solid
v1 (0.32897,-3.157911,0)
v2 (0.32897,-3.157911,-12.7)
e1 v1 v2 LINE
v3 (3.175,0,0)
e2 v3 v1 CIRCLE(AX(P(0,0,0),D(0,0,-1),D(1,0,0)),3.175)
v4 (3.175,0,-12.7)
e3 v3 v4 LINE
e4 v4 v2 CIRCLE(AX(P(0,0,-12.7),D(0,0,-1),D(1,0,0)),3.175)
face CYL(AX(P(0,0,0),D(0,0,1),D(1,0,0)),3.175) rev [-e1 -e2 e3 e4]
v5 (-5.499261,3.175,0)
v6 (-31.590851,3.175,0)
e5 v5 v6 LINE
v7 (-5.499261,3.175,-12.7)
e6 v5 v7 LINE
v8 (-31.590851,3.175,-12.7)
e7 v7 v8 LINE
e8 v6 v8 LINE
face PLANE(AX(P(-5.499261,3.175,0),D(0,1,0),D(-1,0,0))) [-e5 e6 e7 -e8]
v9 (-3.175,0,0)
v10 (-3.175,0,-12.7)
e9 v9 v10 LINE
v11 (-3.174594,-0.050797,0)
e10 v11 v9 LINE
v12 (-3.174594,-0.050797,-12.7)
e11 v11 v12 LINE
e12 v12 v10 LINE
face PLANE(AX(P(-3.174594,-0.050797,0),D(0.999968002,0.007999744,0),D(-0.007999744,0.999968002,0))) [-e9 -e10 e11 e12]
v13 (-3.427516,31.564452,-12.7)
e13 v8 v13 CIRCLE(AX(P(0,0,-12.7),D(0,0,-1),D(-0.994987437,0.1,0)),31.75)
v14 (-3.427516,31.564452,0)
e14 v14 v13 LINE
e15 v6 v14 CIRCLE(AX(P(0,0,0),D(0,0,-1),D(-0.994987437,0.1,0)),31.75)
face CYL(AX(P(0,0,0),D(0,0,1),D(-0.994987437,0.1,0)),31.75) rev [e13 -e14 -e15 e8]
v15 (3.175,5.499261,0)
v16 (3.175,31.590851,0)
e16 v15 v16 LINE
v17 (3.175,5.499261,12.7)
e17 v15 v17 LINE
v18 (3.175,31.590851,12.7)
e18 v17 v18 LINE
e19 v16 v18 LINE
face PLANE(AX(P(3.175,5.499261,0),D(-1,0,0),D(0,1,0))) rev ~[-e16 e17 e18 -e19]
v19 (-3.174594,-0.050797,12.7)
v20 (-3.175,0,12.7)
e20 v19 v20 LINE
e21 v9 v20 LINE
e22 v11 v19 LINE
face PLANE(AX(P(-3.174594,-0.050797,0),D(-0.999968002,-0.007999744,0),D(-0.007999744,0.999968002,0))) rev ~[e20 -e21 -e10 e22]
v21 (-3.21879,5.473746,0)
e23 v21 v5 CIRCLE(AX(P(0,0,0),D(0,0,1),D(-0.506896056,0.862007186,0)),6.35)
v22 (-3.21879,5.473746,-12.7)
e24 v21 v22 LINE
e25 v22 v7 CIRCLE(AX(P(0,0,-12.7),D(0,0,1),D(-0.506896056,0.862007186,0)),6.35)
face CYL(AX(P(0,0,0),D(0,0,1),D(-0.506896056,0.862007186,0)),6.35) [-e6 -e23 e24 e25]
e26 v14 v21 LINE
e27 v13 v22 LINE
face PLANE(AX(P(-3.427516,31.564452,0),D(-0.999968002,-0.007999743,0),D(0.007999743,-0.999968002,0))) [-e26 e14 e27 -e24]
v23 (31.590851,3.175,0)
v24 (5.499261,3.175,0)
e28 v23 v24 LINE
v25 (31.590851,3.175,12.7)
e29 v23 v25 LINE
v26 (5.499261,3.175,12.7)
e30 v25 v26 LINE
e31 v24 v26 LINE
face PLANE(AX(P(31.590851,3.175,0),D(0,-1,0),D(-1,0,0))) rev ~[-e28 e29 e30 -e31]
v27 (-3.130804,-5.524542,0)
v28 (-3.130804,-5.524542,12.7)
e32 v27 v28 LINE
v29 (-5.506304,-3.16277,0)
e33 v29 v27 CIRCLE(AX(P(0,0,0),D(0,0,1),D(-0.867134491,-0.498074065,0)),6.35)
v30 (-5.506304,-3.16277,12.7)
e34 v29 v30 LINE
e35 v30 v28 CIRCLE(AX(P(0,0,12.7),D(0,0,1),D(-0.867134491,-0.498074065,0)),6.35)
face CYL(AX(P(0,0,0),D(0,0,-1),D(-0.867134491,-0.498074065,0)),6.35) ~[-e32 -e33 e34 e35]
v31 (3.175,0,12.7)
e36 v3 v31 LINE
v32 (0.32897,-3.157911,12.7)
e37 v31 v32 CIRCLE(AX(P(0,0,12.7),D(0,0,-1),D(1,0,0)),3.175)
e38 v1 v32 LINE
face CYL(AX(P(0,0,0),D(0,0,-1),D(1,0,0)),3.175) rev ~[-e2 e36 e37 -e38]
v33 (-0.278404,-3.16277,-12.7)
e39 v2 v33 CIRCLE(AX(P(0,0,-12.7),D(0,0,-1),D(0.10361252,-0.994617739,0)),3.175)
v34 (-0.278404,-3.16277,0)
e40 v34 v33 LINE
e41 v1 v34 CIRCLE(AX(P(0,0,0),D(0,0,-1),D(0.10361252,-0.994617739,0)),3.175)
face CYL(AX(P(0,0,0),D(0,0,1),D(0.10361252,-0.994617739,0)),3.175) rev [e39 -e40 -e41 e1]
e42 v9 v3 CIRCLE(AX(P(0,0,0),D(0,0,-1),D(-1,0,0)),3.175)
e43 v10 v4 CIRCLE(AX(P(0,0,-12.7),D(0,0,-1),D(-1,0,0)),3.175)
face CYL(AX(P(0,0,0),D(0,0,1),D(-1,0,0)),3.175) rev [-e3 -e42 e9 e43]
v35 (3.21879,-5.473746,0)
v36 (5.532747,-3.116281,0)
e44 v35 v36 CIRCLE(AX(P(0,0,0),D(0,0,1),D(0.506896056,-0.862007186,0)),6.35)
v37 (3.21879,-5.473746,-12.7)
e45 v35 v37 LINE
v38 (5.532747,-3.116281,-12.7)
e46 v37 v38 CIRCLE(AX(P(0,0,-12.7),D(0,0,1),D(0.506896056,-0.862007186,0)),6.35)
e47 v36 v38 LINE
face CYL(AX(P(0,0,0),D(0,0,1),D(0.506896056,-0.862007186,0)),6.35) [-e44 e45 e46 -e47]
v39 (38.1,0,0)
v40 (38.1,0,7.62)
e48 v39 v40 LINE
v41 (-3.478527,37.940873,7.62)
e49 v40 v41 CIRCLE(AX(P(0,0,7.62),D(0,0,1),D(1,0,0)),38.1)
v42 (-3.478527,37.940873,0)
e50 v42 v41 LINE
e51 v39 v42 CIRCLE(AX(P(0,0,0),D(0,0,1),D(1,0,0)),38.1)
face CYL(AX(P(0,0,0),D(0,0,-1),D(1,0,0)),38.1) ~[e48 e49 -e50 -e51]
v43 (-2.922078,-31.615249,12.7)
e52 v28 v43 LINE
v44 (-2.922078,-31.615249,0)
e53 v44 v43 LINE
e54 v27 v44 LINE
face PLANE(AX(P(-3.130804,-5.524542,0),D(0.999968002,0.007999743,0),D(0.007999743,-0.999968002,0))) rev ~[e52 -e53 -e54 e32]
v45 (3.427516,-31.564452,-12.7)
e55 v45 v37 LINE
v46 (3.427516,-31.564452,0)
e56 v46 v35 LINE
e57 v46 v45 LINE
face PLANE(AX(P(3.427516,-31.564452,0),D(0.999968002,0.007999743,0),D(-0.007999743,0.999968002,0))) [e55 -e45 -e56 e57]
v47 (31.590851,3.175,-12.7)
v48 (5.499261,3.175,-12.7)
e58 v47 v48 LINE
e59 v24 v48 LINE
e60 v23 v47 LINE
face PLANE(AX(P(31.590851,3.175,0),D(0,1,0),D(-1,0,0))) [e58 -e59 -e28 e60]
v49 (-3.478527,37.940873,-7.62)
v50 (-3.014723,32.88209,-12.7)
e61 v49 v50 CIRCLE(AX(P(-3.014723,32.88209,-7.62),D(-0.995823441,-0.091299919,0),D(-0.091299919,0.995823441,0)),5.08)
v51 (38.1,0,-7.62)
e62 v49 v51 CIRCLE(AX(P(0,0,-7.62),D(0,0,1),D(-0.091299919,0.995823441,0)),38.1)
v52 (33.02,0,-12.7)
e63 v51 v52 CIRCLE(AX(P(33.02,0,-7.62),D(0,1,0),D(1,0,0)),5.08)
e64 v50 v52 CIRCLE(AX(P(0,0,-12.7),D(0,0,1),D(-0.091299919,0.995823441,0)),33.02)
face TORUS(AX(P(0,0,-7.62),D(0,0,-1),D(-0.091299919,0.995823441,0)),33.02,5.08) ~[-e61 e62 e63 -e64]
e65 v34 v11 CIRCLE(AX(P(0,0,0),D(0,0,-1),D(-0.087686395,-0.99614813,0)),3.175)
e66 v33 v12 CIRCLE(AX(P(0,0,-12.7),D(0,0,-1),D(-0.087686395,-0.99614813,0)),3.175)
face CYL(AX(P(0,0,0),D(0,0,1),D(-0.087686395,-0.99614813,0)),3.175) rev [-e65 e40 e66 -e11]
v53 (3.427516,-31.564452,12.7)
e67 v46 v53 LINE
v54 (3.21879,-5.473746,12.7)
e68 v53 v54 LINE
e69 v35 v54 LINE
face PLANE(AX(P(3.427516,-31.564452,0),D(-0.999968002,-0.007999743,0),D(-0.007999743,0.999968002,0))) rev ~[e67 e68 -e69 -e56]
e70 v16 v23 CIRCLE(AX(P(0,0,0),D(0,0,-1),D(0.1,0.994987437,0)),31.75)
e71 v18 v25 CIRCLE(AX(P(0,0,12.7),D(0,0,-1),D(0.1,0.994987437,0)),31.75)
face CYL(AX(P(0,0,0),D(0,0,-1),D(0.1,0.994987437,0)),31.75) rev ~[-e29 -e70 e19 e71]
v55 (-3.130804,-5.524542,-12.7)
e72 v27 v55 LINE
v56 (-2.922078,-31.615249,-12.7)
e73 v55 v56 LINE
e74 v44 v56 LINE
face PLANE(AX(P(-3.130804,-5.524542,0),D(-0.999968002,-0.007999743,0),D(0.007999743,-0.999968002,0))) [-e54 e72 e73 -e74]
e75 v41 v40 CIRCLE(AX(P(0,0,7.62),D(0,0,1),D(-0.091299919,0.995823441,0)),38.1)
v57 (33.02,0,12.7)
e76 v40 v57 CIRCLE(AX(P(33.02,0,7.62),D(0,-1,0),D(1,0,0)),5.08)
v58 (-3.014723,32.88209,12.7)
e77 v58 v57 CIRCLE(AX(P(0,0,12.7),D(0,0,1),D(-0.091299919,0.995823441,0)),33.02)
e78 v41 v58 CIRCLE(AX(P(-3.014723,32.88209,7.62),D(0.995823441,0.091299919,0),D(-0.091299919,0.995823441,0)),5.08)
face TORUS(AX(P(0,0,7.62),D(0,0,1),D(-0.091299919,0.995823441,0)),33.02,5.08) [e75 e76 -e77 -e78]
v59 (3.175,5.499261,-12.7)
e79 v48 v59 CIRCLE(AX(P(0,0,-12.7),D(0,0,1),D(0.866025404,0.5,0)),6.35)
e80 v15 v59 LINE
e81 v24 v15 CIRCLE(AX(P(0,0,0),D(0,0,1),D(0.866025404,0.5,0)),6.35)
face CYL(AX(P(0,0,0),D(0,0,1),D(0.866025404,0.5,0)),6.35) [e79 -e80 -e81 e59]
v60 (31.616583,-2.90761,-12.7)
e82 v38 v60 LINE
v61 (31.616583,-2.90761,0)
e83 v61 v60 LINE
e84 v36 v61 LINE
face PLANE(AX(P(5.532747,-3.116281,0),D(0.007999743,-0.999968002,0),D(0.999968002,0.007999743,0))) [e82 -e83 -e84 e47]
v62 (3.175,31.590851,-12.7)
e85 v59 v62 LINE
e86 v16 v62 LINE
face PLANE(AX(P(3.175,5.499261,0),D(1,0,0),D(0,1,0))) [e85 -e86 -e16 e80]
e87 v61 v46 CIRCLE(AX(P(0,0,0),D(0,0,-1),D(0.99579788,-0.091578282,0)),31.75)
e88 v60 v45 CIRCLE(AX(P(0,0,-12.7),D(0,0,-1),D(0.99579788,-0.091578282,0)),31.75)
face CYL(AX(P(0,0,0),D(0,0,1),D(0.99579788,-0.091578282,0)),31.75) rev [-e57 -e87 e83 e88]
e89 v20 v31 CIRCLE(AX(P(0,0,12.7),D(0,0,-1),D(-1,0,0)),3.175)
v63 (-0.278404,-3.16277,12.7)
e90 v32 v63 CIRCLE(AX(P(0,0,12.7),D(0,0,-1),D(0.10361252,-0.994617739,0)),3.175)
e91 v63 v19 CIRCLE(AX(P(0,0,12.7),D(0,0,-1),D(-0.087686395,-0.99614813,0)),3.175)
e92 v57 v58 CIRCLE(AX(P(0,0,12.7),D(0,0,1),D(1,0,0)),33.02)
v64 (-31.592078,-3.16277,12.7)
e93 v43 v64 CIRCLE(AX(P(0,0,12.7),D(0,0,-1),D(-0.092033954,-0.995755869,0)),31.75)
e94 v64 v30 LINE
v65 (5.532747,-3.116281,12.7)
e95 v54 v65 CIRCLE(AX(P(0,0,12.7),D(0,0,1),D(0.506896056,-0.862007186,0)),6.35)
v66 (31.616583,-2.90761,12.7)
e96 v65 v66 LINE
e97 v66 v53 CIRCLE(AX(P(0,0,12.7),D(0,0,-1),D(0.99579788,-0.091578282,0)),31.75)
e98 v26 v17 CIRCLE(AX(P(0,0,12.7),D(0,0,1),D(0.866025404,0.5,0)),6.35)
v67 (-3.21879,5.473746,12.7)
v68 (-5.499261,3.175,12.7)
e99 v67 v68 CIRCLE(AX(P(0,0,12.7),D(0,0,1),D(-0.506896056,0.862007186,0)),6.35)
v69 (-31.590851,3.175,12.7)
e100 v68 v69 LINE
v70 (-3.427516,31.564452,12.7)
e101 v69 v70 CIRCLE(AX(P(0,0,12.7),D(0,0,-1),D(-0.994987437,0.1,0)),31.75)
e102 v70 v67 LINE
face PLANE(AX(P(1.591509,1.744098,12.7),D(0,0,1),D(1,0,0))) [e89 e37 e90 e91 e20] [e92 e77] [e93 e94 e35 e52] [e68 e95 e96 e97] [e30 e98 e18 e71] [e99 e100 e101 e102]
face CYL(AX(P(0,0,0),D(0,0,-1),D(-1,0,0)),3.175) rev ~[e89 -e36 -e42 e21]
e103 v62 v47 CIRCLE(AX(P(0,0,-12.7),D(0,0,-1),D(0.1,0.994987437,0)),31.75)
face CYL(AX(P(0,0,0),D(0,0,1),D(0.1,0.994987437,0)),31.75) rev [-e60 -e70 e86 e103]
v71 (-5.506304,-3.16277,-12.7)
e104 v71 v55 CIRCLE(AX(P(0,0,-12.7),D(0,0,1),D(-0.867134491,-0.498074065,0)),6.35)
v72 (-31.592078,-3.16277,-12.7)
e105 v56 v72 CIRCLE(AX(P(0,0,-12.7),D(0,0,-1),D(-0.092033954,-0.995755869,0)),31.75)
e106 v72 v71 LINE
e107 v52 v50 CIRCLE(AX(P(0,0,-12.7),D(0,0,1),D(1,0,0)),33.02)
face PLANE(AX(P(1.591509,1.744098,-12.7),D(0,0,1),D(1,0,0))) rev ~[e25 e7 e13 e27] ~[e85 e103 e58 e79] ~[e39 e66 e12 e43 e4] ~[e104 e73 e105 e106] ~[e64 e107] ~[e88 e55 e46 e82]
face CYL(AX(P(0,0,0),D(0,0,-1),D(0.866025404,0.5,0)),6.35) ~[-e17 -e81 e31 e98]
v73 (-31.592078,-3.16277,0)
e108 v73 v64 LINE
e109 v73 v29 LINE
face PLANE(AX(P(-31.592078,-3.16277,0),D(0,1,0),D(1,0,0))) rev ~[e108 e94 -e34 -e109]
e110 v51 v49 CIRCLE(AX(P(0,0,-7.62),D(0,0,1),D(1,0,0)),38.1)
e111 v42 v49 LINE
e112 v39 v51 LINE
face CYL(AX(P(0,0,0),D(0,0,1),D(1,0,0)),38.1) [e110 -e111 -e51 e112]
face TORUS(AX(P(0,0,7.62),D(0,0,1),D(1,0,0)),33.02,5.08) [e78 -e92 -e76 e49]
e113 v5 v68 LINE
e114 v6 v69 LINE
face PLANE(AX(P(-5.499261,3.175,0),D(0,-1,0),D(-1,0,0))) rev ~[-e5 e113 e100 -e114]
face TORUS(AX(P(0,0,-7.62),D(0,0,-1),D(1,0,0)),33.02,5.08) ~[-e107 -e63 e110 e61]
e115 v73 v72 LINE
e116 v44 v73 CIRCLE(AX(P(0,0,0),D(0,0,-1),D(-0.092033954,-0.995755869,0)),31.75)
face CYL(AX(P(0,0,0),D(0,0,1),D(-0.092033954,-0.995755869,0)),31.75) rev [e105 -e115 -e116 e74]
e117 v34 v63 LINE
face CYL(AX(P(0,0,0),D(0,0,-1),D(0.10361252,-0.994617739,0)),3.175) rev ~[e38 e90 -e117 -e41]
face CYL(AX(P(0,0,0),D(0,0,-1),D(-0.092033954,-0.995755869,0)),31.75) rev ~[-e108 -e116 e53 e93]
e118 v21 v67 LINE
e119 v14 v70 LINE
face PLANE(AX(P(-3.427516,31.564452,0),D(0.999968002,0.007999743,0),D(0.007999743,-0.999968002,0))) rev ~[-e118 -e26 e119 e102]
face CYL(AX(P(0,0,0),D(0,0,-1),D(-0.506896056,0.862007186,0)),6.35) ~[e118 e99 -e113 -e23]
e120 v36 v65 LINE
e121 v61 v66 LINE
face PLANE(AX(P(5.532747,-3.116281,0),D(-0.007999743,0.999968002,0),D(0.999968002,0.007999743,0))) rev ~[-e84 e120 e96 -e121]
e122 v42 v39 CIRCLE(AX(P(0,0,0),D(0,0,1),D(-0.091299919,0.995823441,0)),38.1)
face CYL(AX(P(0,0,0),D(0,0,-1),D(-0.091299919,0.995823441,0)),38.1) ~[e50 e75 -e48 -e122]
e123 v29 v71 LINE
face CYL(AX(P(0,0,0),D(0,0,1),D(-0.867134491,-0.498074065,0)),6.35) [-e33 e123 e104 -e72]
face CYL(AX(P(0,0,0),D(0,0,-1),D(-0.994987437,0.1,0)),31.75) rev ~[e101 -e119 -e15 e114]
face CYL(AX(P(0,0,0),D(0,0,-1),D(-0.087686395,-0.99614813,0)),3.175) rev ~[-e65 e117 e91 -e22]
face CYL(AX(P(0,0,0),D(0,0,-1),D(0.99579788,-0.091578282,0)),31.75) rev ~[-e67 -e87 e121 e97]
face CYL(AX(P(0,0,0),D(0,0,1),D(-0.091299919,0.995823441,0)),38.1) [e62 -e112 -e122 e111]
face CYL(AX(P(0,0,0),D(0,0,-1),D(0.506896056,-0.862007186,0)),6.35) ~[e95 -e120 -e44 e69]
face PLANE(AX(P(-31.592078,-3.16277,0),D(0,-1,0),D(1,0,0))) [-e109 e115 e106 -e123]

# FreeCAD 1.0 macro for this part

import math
import FreeCAD as App
import Part
import Sketcher

V = App.Vector
Q = App.Units.Quantity


def edges_at(feature, points):
    """Names of the edges that pass closest to the given points."""
    edges = feature.Shape.Edges
    near = lambda p: min(range(len(edges)), key=lambda i: edges[i].distToShape(Part.Vertex(*p))[0])
    return sorted({f"Edge{near(p) + 1}" for p in points})

doc = App.newDocument("Part")
body = doc.addObject("PartDesign::Body", "Body")

# Sketch on XY plane
sketch1 = doc.addObject("Sketcher::SketchObject", "Sketch")
body.addObject(sketch1)
sketch1.AttachmentSupport = (doc.XY_Plane, [""])
sketch1.MapMode = "FlatFace"
sketch1.addGeometry([
    Part.ArcOfCircle(Part.Circle(V(0, 0, 0), V(0, 0, 1), 38.1), math.radians(95.238395), math.radians(360)),  # 0
    Part.ArcOfCircle(Part.Circle(V(0, 0, 0), V(0, 0, 1), 38.1), math.radians(0), math.radians(95.238395)),  # 1
    Part.ArcOfCircle(Part.Circle(V(0, 0, 0), V(0, 0, 1), 31.75), math.radians(-174.28301), math.radians(-95.28063)),  # 2
    Part.LineSegment(V(-31.592078, -3.16277, 0), V(-5.506304, -3.16277, 0)),  # 3
    Part.ArcOfCircle(Part.Circle(V(0, 0, 0), V(0, 0, 1), 6.35), math.radians(-150.127337), math.radians(-119.540585)),  # 4
    Part.LineSegment(V(-3.130804, -5.524542, 0), V(-2.922078, -31.615249, 0)),  # 5
    Part.ArcOfCircle(Part.Circle(V(0, 0, 0), V(0, 0, 1), 31.75), math.radians(-83.802657), math.radians(-5.254411)),  # 6
    Part.LineSegment(V(3.427516, -31.564452, 0), V(3.21879, -5.473746, 0)),  # 7
    Part.ArcOfCircle(Part.Circle(V(0, 0, 0), V(0, 0, 1), 6.35), math.radians(-59.542702), math.radians(-29.390082)),  # 8
    Part.LineSegment(V(5.532747, -3.116281, 0), V(31.616583, -2.90761, 0)),  # 9
    Part.LineSegment(V(-3.174594, -0.050797, 0), V(-3.175, 0, 0)),  # 10
    Part.ArcOfCircle(Part.Circle(V(0, 0, 0), V(0, 0, 1), 3.175), math.radians(0), math.radians(180)),  # 11
    Part.ArcOfCircle(Part.Circle(V(0, 0, 0), V(0, 0, 1), 3.175), math.radians(-84.052766), math.radians(0)),  # 12
    Part.ArcOfCircle(Part.Circle(V(0, 0, 0), V(0, 0, 1), 3.175), math.radians(-95.030521), math.radians(-84.052766)),  # 13
    Part.ArcOfCircle(Part.Circle(V(0, 0, 0), V(0, 0, 1), 3.175), math.radians(-179.083287), math.radians(-95.030521)),  # 14
    Part.LineSegment(V(-5.499261, 3.175, 0), V(-31.590851, 3.175, 0)),  # 15
    Part.ArcOfCircle(Part.Circle(V(0, 0, 0), V(0, 0, 1), 31.75), math.radians(96.197343), math.radians(174.26083)),  # 16
    Part.LineSegment(V(-3.427516, 31.564452, 0), V(-3.21879, 5.473746, 0)),  # 17
    Part.ArcOfCircle(Part.Circle(V(0, 0, 0), V(0, 0, 1), 6.35), math.radians(120.457298), math.radians(150)),  # 18
    Part.ArcOfCircle(Part.Circle(V(0, 0, 0), V(0, 0, 1), 31.75), math.radians(5.73917), math.radians(84.26083)),  # 19
    Part.LineSegment(V(31.590851, 3.175, 0), V(5.499261, 3.175, 0)),  # 20
    Part.ArcOfCircle(Part.Circle(V(0, 0, 0), V(0, 0, 1), 6.35), math.radians(30), math.radians(60)),  # 21
    Part.LineSegment(V(3.175, 5.499261, 0), V(3.175, 31.590851, 0)),  # 22
], False)
sketch1.addConstraint([
    Sketcher.Constraint("Coincident", 0, 1, 1, 2),
    Sketcher.Constraint("Coincident", 1, 1, 0, 2),
    Sketcher.Constraint("Coincident", 2, 1, 3, 1),
    Sketcher.Constraint("Coincident", 3, 2, 4, 1),
    Sketcher.Constraint("Coincident", 4, 2, 5, 1),
    Sketcher.Constraint("Coincident", 5, 2, 2, 2),
    Sketcher.Constraint("Coincident", 6, 1, 7, 1),
    Sketcher.Constraint("Coincident", 7, 2, 8, 1),
    Sketcher.Constraint("Coincident", 8, 2, 9, 1),
    Sketcher.Constraint("Coincident", 9, 2, 6, 2),
    Sketcher.Constraint("Coincident", 10, 2, 11, 2),
    Sketcher.Constraint("Coincident", 11, 1, 12, 2),
    Sketcher.Constraint("Coincident", 12, 1, 13, 2),
    Sketcher.Constraint("Coincident", 13, 1, 14, 2),
    Sketcher.Constraint("Coincident", 14, 1, 10, 1),
    Sketcher.Constraint("Coincident", 15, 2, 16, 2),
    Sketcher.Constraint("Coincident", 16, 1, 17, 1),
    Sketcher.Constraint("Coincident", 17, 2, 18, 1),
    Sketcher.Constraint("Coincident", 18, 2, 15, 1),
    Sketcher.Constraint("Coincident", 19, 1, 20, 1),
    Sketcher.Constraint("Coincident", 20, 2, 21, 1),
    Sketcher.Constraint("Coincident", 21, 2, 22, 1),
    Sketcher.Constraint("Coincident", 22, 2, 19, 2),
    Sketcher.Constraint("Horizontal", 3),
    Sketcher.Constraint("Horizontal", 15),
    Sketcher.Constraint("Horizontal", 20),
    Sketcher.Constraint("Vertical", 22),
    Sketcher.Constraint("Coincident", 0, 3, -1, 1),
    Sketcher.Constraint("Coincident", 2, 3, -1, 1),
    Sketcher.Constraint("Coincident", 4, 3, -1, 1),
    Sketcher.Constraint("Coincident", 6, 3, -1, 1),
    Sketcher.Constraint("Coincident", 8, 3, -1, 1),
    Sketcher.Constraint("Coincident", 11, 3, -1, 1),
    Sketcher.Constraint("Coincident", 12, 3, -1, 1),
    Sketcher.Constraint("Coincident", 13, 3, -1, 1),
    Sketcher.Constraint("Coincident", 14, 3, -1, 1),
    Sketcher.Constraint("Coincident", 16, 3, -1, 1),
    Sketcher.Constraint("Coincident", 18, 3, -1, 1),
    Sketcher.Constraint("Coincident", 19, 3, -1, 1),
    Sketcher.Constraint("Coincident", 21, 3, -1, 1),
    Sketcher.Constraint("PointOnObject", 1, 1, -1),
    Sketcher.Constraint("PointOnObject", 10, 2, -1),
    Sketcher.Constraint("PointOnObject", 11, 1, -1),
    Sketcher.Constraint("Radius", 0, Q("1.5 in")),
    Sketcher.Constraint("Radius", 1, Q("1.5 in")),
    Sketcher.Constraint("Radius", 2, Q("1.25 in")),
    Sketcher.Constraint("Radius", 4, Q("0.25 in")),
    Sketcher.Constraint("Radius", 6, Q("1.25 in")),
    Sketcher.Constraint("Radius", 8, Q("0.25 in")),
    Sketcher.Constraint("Radius", 16, Q("1.25 in")),
    Sketcher.Constraint("Radius", 18, Q("0.25 in")),
    Sketcher.Constraint("Radius", 19, Q("1.25 in")),
    Sketcher.Constraint("Radius", 21, Q("0.25 in")),
    Sketcher.Constraint("Radius", 11, Q("0.125 in")),
    Sketcher.Constraint("Distance", 10, Q("0.0019999 in")),
    Sketcher.Constraint("DistanceY", -1, 1, 15, 2, Q("0.125 in")),
    Sketcher.Constraint("DistanceY", -1, 1, 19, 1, Q("0.125 in")),
    Sketcher.Constraint("DistanceX", -1, 1, 21, 2, Q("0.125 in")),
    Sketcher.Constraint("DistanceY", 5, 2, 6, 1, Q("0.0019999 in")),
    Sketcher.Constraint("DistanceY", 4, 2, 7, 2, Q("0.0019999 in")),
    Sketcher.Constraint("DistanceX", 3, 2, 4, 2, Q("2.3755 mm")),
    Sketcher.Constraint("DistanceY", 16, 1, 22, 2, Q("0.026399 mm")),
    Sketcher.Constraint("Distance", 5, Q("26.091541 mm")),
    Sketcher.Constraint("Distance", 7, Q("26.091541 mm")),
    Sketcher.Constraint("Distance", 9, Q("26.08467 mm")),
    Sketcher.Constraint("Distance", 17, Q("26.091541 mm")),
    Sketcher.Constraint("DistanceY", 8, 2, -1, 1, Q("3.116281 mm")),
    Sketcher.Constraint("DistanceX", -1, 1, 12, 1, Q("0.32897 mm")),
    Sketcher.Constraint("DistanceY", 13, 1, -1, 1, Q("3.16277 mm")),
    Sketcher.Constraint("DistanceX", 0, 1, 16, 1, Q("0.051011 mm")),
])
pad1 = doc.addObject("PartDesign::Pad", "Pad")
body.addObject(pad1)
pad1.Profile = sketch1
pad1.Length = Q("1 in")
pad1.Midplane = True
doc.recompute()

fillet = doc.addObject("PartDesign::Fillet", "Fillet")
body.addObject(fillet)
fillet.Base = (pad1, edges_at(pad1, [(-25.681, -28.144, 12.7), (-25.681, -28.144, -12.7)]))
fillet.Radius = Q("0.2 in")

doc.recompute()
